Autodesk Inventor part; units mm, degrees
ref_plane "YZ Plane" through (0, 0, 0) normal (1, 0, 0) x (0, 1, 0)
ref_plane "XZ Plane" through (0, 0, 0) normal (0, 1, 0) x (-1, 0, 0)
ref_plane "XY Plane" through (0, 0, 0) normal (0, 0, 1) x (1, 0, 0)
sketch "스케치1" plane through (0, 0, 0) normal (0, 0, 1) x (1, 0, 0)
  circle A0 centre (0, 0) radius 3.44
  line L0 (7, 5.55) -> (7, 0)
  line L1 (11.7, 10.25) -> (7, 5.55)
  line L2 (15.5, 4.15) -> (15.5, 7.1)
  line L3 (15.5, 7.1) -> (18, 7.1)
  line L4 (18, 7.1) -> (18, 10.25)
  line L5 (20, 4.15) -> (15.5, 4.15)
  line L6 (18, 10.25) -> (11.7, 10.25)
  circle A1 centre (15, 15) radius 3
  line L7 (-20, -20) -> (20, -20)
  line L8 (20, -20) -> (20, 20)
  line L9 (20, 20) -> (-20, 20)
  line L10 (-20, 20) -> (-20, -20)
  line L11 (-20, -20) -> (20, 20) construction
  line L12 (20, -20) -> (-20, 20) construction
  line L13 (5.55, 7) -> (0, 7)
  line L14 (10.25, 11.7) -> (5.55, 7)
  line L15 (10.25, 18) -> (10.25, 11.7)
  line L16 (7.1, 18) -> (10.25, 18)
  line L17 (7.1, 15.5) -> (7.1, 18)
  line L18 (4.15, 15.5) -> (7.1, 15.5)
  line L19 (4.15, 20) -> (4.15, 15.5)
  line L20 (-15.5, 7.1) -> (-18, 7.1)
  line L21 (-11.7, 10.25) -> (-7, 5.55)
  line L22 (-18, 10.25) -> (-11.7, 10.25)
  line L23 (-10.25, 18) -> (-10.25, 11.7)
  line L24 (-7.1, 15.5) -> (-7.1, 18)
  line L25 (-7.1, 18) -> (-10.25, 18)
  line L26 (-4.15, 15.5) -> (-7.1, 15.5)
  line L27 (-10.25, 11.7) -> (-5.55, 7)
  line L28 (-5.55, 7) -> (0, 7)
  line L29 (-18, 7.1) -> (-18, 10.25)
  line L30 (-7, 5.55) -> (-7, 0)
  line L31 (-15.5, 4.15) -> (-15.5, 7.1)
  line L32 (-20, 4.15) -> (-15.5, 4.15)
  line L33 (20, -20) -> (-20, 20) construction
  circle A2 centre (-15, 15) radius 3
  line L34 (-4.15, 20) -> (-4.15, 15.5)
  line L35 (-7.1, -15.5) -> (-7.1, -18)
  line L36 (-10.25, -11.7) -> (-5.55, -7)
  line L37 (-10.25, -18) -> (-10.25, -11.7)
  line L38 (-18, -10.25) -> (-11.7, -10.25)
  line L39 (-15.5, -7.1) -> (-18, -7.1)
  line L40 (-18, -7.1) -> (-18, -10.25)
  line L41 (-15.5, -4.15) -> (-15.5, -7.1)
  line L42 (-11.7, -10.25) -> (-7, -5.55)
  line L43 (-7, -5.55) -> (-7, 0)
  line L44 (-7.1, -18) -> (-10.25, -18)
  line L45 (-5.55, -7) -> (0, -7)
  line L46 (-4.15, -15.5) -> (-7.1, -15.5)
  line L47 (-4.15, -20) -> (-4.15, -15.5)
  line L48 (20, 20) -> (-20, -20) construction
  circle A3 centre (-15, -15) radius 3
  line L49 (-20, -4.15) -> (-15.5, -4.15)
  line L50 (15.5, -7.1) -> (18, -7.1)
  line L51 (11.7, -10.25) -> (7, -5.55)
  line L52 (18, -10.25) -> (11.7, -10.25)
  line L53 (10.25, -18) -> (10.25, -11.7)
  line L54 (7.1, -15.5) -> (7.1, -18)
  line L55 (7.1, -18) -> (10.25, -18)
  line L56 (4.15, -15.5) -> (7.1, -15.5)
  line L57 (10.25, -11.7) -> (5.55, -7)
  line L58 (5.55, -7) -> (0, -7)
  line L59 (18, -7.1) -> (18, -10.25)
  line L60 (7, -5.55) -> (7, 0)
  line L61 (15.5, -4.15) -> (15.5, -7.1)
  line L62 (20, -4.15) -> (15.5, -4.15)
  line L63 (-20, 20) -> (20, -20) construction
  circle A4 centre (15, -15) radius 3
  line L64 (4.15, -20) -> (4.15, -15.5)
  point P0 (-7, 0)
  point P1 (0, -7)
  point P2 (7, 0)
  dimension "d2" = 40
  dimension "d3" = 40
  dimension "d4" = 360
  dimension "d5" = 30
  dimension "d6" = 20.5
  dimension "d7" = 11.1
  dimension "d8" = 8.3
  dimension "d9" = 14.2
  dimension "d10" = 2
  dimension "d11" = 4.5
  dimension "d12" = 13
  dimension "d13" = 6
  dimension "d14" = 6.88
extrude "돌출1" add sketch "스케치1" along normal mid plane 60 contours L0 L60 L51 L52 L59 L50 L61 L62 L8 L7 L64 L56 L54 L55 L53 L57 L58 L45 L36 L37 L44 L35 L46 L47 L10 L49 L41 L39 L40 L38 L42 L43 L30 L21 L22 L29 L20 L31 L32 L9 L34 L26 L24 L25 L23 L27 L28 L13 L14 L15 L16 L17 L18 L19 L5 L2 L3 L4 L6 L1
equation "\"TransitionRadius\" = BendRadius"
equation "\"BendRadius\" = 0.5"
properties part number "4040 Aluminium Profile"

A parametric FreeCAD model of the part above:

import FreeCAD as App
import Part
import Sketcher
from FreeCAD import Vector

doc = App.newDocument("Part")
body = doc.addObject("PartDesign::Body", "Body")

# Sketch on XY plane
sketch1 = body.newObject("Sketcher::SketchObject", "Sketch")
sketch1.AttachmentSupport = (doc.getObject("XY_Plane"), [""])
sketch1.MapMode = "FlatFace"
sketch1.addGeometry([
    Part.LineSegment(Vector(7, -5.55, 0), Vector(7, 5.55, 0)),  # 0
    Part.LineSegment(Vector(7, 5.55, 0), Vector(11.7, 10.25, 0)),  # 1
    Part.LineSegment(Vector(11.7, 10.25, 0), Vector(18, 10.25, 0)),  # 2
    Part.LineSegment(Vector(18, 10.25, 0), Vector(18, 7.1, 0)),  # 3
    Part.LineSegment(Vector(18, 7.1, 0), Vector(15.5, 7.1, 0)),  # 4
    Part.LineSegment(Vector(15.5, 7.1, 0), Vector(15.5, 4.15, 0)),  # 5
    Part.LineSegment(Vector(15.5, 4.15, 0), Vector(20, 4.15, 0)),  # 6
    Part.LineSegment(Vector(20, 4.15, 0), Vector(20, 20, 0)),  # 7
    Part.LineSegment(Vector(20, 20, 0), Vector(4.15, 20, 0)),  # 8
    Part.LineSegment(Vector(4.15, 20, 0), Vector(4.15, 15.5, 0)),  # 9
    Part.LineSegment(Vector(4.15, 15.5, 0), Vector(7.1, 15.5, 0)),  # 10
    Part.LineSegment(Vector(7.1, 15.5, 0), Vector(7.1, 18, 0)),  # 11
    Part.LineSegment(Vector(7.1, 18, 0), Vector(10.25, 18, 0)),  # 12
    Part.LineSegment(Vector(10.25, 18, 0), Vector(10.25, 11.7, 0)),  # 13
    Part.LineSegment(Vector(10.25, 11.7, 0), Vector(5.55, 7, 0)),  # 14
    Part.LineSegment(Vector(5.55, 7, 0), Vector(-5.55, 7, 0)),  # 15
    Part.LineSegment(Vector(-5.55, 7, 0), Vector(-10.25, 11.7, 0)),  # 16
    Part.LineSegment(Vector(-10.25, 11.7, 0), Vector(-10.25, 18, 0)),  # 17
    Part.LineSegment(Vector(-10.25, 18, 0), Vector(-7.1, 18, 0)),  # 18
    Part.LineSegment(Vector(-7.1, 18, 0), Vector(-7.1, 15.5, 0)),  # 19
    Part.LineSegment(Vector(-7.1, 15.5, 0), Vector(-4.15, 15.5, 0)),  # 20
    Part.LineSegment(Vector(-4.15, 15.5, 0), Vector(-4.15, 20, 0)),  # 21
    Part.LineSegment(Vector(-4.15, 20, 0), Vector(-20, 20, 0)),  # 22
    Part.LineSegment(Vector(-20, 20, 0), Vector(-20, 4.15, 0)),  # 23
    Part.LineSegment(Vector(-20, 4.15, 0), Vector(-15.5, 4.15, 0)),  # 24
    Part.LineSegment(Vector(-15.5, 4.15, 0), Vector(-15.5, 7.1, 0)),  # 25
    Part.LineSegment(Vector(-15.5, 7.1, 0), Vector(-18, 7.1, 0)),  # 26
    Part.LineSegment(Vector(-18, 7.1, 0), Vector(-18, 10.25, 0)),  # 27
    Part.LineSegment(Vector(-18, 10.25, 0), Vector(-11.7, 10.25, 0)),  # 28
    Part.LineSegment(Vector(-11.7, 10.25, 0), Vector(-7, 5.55, 0)),  # 29
    Part.LineSegment(Vector(-7, 5.55, 0), Vector(-7, -5.55, 0)),  # 30
    Part.LineSegment(Vector(-7, -5.55, 0), Vector(-11.7, -10.25, 0)),  # 31
    Part.LineSegment(Vector(-11.7, -10.25, 0), Vector(-18, -10.25, 0)),  # 32
    Part.LineSegment(Vector(-18, -10.25, 0), Vector(-18, -7.1, 0)),  # 33
    Part.LineSegment(Vector(-18, -7.1, 0), Vector(-15.5, -7.1, 0)),  # 34
    Part.LineSegment(Vector(-15.5, -7.1, 0), Vector(-15.5, -4.15, 0)),  # 35
    Part.LineSegment(Vector(-15.5, -4.15, 0), Vector(-20, -4.15, 0)),  # 36
    Part.LineSegment(Vector(-20, -4.15, 0), Vector(-20, -20, 0)),  # 37
    Part.LineSegment(Vector(-20, -20, 0), Vector(-4.15, -20, 0)),  # 38
    Part.LineSegment(Vector(-4.15, -20, 0), Vector(-4.15, -15.5, 0)),  # 39
    Part.LineSegment(Vector(-4.15, -15.5, 0), Vector(-7.1, -15.5, 0)),  # 40
    Part.LineSegment(Vector(-7.1, -15.5, 0), Vector(-7.1, -18, 0)),  # 41
    Part.LineSegment(Vector(-7.1, -18, 0), Vector(-10.25, -18, 0)),  # 42
    Part.LineSegment(Vector(-10.25, -18, 0), Vector(-10.25, -11.7, 0)),  # 43
    Part.LineSegment(Vector(-10.25, -11.7, 0), Vector(-5.55, -7, 0)),  # 44
    Part.LineSegment(Vector(-5.55, -7, 0), Vector(5.55, -7, 0)),  # 45
    Part.LineSegment(Vector(5.55, -7, 0), Vector(10.25, -11.7, 0)),  # 46
    Part.LineSegment(Vector(10.25, -11.7, 0), Vector(10.25, -18, 0)),  # 47
    Part.LineSegment(Vector(10.25, -18, 0), Vector(7.1, -18, 0)),  # 48
    Part.LineSegment(Vector(7.1, -18, 0), Vector(7.1, -15.5, 0)),  # 49
    Part.LineSegment(Vector(7.1, -15.5, 0), Vector(4.15, -15.5, 0)),  # 50
    Part.LineSegment(Vector(4.15, -15.5, 0), Vector(4.15, -20, 0)),  # 51
    Part.LineSegment(Vector(4.15, -20, 0), Vector(20, -20, 0)),  # 52
    Part.LineSegment(Vector(20, -20, 0), Vector(20, -4.15, 0)),  # 53
    Part.LineSegment(Vector(20, -4.15, 0), Vector(15.5, -4.15, 0)),  # 54
    Part.LineSegment(Vector(15.5, -4.15, 0), Vector(15.5, -7.1, 0)),  # 55
    Part.LineSegment(Vector(15.5, -7.1, 0), Vector(18, -7.1, 0)),  # 56
    Part.LineSegment(Vector(18, -7.1, 0), Vector(18, -10.25, 0)),  # 57
    Part.LineSegment(Vector(18, -10.25, 0), Vector(11.7, -10.25, 0)),  # 58
    Part.LineSegment(Vector(11.7, -10.25, 0), Vector(7, -5.55, 0)),  # 59
    Part.Circle(Vector(-15, -15, 0), Vector(0, 0, 1), 3),  # 60
    Part.Circle(Vector(15, -15, 0), Vector(0, 0, 1), 3),  # 61
    Part.Circle(Vector(-15, 15, 0), Vector(0, 0, 1), 3),  # 62
    Part.Circle(Vector(0, 0, 0), Vector(0, 0, 1), 3.44),  # 63
    Part.Circle(Vector(15, 15, 0), Vector(0, 0, 1), 3),  # 64
], False)
sketch1.addConstraint([
    Sketcher.Constraint("Coincident", 0, 2, 1, 1),
    Sketcher.Constraint("Coincident", 1, 2, 2, 1),
    Sketcher.Constraint("Coincident", 2, 2, 3, 1),
    Sketcher.Constraint("Coincident", 3, 2, 4, 1),
    Sketcher.Constraint("Coincident", 4, 2, 5, 1),
    Sketcher.Constraint("Coincident", 5, 2, 6, 1),
    Sketcher.Constraint("Coincident", 6, 2, 7, 1),
    Sketcher.Constraint("Coincident", 7, 2, 8, 1),
    Sketcher.Constraint("Coincident", 8, 2, 9, 1),
    Sketcher.Constraint("Coincident", 9, 2, 10, 1),
    Sketcher.Constraint("Coincident", 10, 2, 11, 1),
    Sketcher.Constraint("Coincident", 11, 2, 12, 1),
    Sketcher.Constraint("Coincident", 12, 2, 13, 1),
    Sketcher.Constraint("Coincident", 13, 2, 14, 1),
    Sketcher.Constraint("Coincident", 14, 2, 15, 1),
    Sketcher.Constraint("Coincident", 15, 2, 16, 1),
    Sketcher.Constraint("Coincident", 16, 2, 17, 1),
    Sketcher.Constraint("Coincident", 17, 2, 18, 1),
    Sketcher.Constraint("Coincident", 18, 2, 19, 1),
    Sketcher.Constraint("Coincident", 19, 2, 20, 1),
    Sketcher.Constraint("Coincident", 20, 2, 21, 1),
    Sketcher.Constraint("Coincident", 21, 2, 22, 1),
    Sketcher.Constraint("Coincident", 22, 2, 23, 1),
    Sketcher.Constraint("Coincident", 23, 2, 24, 1),
    Sketcher.Constraint("Coincident", 24, 2, 25, 1),
    Sketcher.Constraint("Coincident", 25, 2, 26, 1),
    Sketcher.Constraint("Coincident", 26, 2, 27, 1),
    Sketcher.Constraint("Coincident", 27, 2, 28, 1),
    Sketcher.Constraint("Coincident", 28, 2, 29, 1),
    Sketcher.Constraint("Coincident", 29, 2, 30, 1),
    Sketcher.Constraint("Coincident", 30, 2, 31, 1),
    Sketcher.Constraint("Coincident", 31, 2, 32, 1),
    Sketcher.Constraint("Coincident", 32, 2, 33, 1),
    Sketcher.Constraint("Coincident", 33, 2, 34, 1),
    Sketcher.Constraint("Coincident", 34, 2, 35, 1),
    Sketcher.Constraint("Coincident", 35, 2, 36, 1),
    Sketcher.Constraint("Coincident", 36, 2, 37, 1),
    Sketcher.Constraint("Coincident", 37, 2, 38, 1),
    Sketcher.Constraint("Coincident", 38, 2, 39, 1),
    Sketcher.Constraint("Coincident", 39, 2, 40, 1),
    Sketcher.Constraint("Coincident", 40, 2, 41, 1),
    Sketcher.Constraint("Coincident", 41, 2, 42, 1),
    Sketcher.Constraint("Coincident", 42, 2, 43, 1),
    Sketcher.Constraint("Coincident", 43, 2, 44, 1),
    Sketcher.Constraint("Coincident", 44, 2, 45, 1),
    Sketcher.Constraint("Coincident", 45, 2, 46, 1),
    Sketcher.Constraint("Coincident", 46, 2, 47, 1),
    Sketcher.Constraint("Coincident", 47, 2, 48, 1),
    Sketcher.Constraint("Coincident", 48, 2, 49, 1),
    Sketcher.Constraint("Coincident", 49, 2, 50, 1),
    Sketcher.Constraint("Coincident", 50, 2, 51, 1),
    Sketcher.Constraint("Coincident", 51, 2, 52, 1),
    Sketcher.Constraint("Coincident", 52, 2, 53, 1),
    Sketcher.Constraint("Coincident", 53, 2, 54, 1),
    Sketcher.Constraint("Coincident", 54, 2, 55, 1),
    Sketcher.Constraint("Coincident", 55, 2, 56, 1),
    Sketcher.Constraint("Coincident", 56, 2, 57, 1),
    Sketcher.Constraint("Coincident", 57, 2, 58, 1),
    Sketcher.Constraint("Coincident", 58, 2, 59, 1),
    Sketcher.Constraint("Coincident", 59, 2, 0, 1),
    Sketcher.Constraint("Vertical", 0),
    Sketcher.Constraint("Horizontal", 2),
    Sketcher.Constraint("Vertical", 3),
    Sketcher.Constraint("Horizontal", 4),
    Sketcher.Constraint("Vertical", 5),
    Sketcher.Constraint("Horizontal", 6),
    Sketcher.Constraint("Vertical", 7),
    Sketcher.Constraint("Horizontal", 8),
    Sketcher.Constraint("Vertical", 9),
    Sketcher.Constraint("Horizontal", 10),
    Sketcher.Constraint("Vertical", 11),
    Sketcher.Constraint("Horizontal", 12),
    Sketcher.Constraint("Vertical", 13),
    Sketcher.Constraint("Horizontal", 15),
    Sketcher.Constraint("Vertical", 17),
    Sketcher.Constraint("Horizontal", 18),
    Sketcher.Constraint("Vertical", 19),
    Sketcher.Constraint("Horizontal", 20),
    Sketcher.Constraint("Vertical", 21),
    Sketcher.Constraint("Horizontal", 22),
    Sketcher.Constraint("Vertical", 23),
    Sketcher.Constraint("Horizontal", 24),
    Sketcher.Constraint("Vertical", 25),
    Sketcher.Constraint("Horizontal", 26),
    Sketcher.Constraint("Vertical", 27),
    Sketcher.Constraint("Horizontal", 28),
    Sketcher.Constraint("Vertical", 30),
    Sketcher.Constraint("Horizontal", 32),
    Sketcher.Constraint("Vertical", 33),
    Sketcher.Constraint("Horizontal", 34),
    Sketcher.Constraint("Vertical", 35),
    Sketcher.Constraint("Horizontal", 36),
    Sketcher.Constraint("Vertical", 37),
    Sketcher.Constraint("Horizontal", 38),
    Sketcher.Constraint("Vertical", 39),
    Sketcher.Constraint("Horizontal", 40),
    Sketcher.Constraint("Vertical", 41),
    Sketcher.Constraint("Horizontal", 42),
    Sketcher.Constraint("Vertical", 43),
    Sketcher.Constraint("Horizontal", 45),
    Sketcher.Constraint("Vertical", 47),
    Sketcher.Constraint("Horizontal", 48),
    Sketcher.Constraint("Vertical", 49),
    Sketcher.Constraint("Horizontal", 50),
    Sketcher.Constraint("Vertical", 51),
    Sketcher.Constraint("Horizontal", 52),
    Sketcher.Constraint("Vertical", 53),
    Sketcher.Constraint("Horizontal", 54),
    Sketcher.Constraint("Vertical", 55),
    Sketcher.Constraint("Horizontal", 56),
    Sketcher.Constraint("Vertical", 57),
    Sketcher.Constraint("Horizontal", 58),
    Sketcher.Constraint("Coincident", 63, 3, -1, 1),
    Sketcher.Constraint("Equal", 60, 61),
    Sketcher.Constraint("Equal", 61, 62),
    Sketcher.Constraint("Equal", 62, 64),
    Sketcher.Constraint("Symmetric", 61, 3, 62, 3, -1, 1),
    Sketcher.Constraint("Symmetric", 60, 3, 64, 3, -1, 1),
    Sketcher.Constraint("Symmetric", 0, 2, 30, 2, -1, 1),
    Sketcher.Constraint("Symmetric", 1, 2, 31, 2, -1, 1),
    Sketcher.Constraint("Symmetric", 3, 2, 33, 2, -1, 1),
    Sketcher.Constraint("Symmetric", 5, 2, 35, 2, -1, 1),
    Sketcher.Constraint("Symmetric", 7, 2, 37, 2, -1, 1),
    Sketcher.Constraint("Symmetric", 9, 2, 39, 2, -1, 1),
    Sketcher.Constraint("Symmetric", 11, 2, 41, 2, -1, 1),
    Sketcher.Constraint("Symmetric", 13, 2, 43, 2, -1, 1),
    Sketcher.Constraint("Symmetric", 14, 2, 44, 2, -1, 1),
    Sketcher.Constraint("Symmetric", 16, 2, 46, 2, -1, 1),
    Sketcher.Constraint("Symmetric", 18, 2, 48, 2, -1, 1),
    Sketcher.Constraint("Symmetric", 20, 2, 50, 2, -1, 1),
    Sketcher.Constraint("Symmetric", 22, 2, 52, 2, -1, 1),
    Sketcher.Constraint("Symmetric", 24, 2, 54, 2, -1, 1),
    Sketcher.Constraint("Symmetric", 26, 2, 56, 2, -1, 1),
    Sketcher.Constraint("Symmetric", 28, 2, 58, 2, -1, 1),
    Sketcher.Constraint("Symmetric", 60, 3, 61, 3, -2),
    Sketcher.Constraint("Symmetric", 13, 2, 16, 2, -2),
    Sketcher.Constraint("Symmetric", 11, 2, 18, 2, -2),
    Sketcher.Constraint("Symmetric", 9, 2, 20, 2, -2),
    Sketcher.Constraint("Symmetric", 7, 2, 22, 2, -2),
    Sketcher.Constraint("Symmetric", 5, 2, 24, 2, -2),
    Sketcher.Constraint("Symmetric", 3, 2, 26, 2, -2),
    Sketcher.Constraint("Symmetric", 1, 2, 28, 2, -2),
    Sketcher.Constraint("Parallel", 1, 14),
    Sketcher.Constraint("Perpendicular", 14, 16),
    Sketcher.Constraint("Parallel", 16, 29),
    Sketcher.Constraint("Perpendicular", 44, 46),
    Sketcher.Constraint("Parallel", 46, 59),
    Sketcher.Constraint("Horizontal", 0, 2, 29, 2),
    Sketcher.Constraint("Equal", 45, 0),
    Sketcher.Constraint("Equal", 48, 3),
    Sketcher.Constraint("Equal", 50, 5),
    Sketcher.Constraint("Equal", 52, 7),
    Sketcher.Constraint("Equal", 54, 9),
    Sketcher.Constraint("Equal", 56, 11),
    Sketcher.Constraint("Equal", 58, 13),
    Sketcher.Constraint("Equal", 1, 14),
    Sketcher.Constraint("Diameter", 60, 6.0),
    Sketcher.Constraint("Diameter", 63, 6.88),
    Sketcher.Constraint("DistanceX", 6, 1, 6, 2, 4.5),
    Sketcher.Constraint("DistanceX", 15, 2, 15, 1, 11.1),
    Sketcher.Constraint("DistanceX", 2, 1, 2, 2, 6.3),
    Sketcher.Constraint("DistanceX", 4, 2, 4, 1, 2.5),
    Sketcher.Constraint("DistanceX", 60, 3, -1, 1, 15.0),
    Sketcher.Constraint("DistanceY", 60, 3, -1, 1, 15.0),
    Sketcher.Constraint("DistanceX", -1, 1, 0, 2, 7.0),
    Sketcher.Constraint("DistanceX", -1, 1, 2, 2, 18.0),
    Sketcher.Constraint("DistanceX", 8, 2, 8, 1, 15.85),
    Sketcher.Constraint("DistanceX", 10, 1, 10, 2, 2.95),
])
pad1 = body.newObject("PartDesign::Pad", "Pad")
pad1.Profile = sketch1
pad1.Length = 60
pad1.Midplane = True

doc.recompute()
